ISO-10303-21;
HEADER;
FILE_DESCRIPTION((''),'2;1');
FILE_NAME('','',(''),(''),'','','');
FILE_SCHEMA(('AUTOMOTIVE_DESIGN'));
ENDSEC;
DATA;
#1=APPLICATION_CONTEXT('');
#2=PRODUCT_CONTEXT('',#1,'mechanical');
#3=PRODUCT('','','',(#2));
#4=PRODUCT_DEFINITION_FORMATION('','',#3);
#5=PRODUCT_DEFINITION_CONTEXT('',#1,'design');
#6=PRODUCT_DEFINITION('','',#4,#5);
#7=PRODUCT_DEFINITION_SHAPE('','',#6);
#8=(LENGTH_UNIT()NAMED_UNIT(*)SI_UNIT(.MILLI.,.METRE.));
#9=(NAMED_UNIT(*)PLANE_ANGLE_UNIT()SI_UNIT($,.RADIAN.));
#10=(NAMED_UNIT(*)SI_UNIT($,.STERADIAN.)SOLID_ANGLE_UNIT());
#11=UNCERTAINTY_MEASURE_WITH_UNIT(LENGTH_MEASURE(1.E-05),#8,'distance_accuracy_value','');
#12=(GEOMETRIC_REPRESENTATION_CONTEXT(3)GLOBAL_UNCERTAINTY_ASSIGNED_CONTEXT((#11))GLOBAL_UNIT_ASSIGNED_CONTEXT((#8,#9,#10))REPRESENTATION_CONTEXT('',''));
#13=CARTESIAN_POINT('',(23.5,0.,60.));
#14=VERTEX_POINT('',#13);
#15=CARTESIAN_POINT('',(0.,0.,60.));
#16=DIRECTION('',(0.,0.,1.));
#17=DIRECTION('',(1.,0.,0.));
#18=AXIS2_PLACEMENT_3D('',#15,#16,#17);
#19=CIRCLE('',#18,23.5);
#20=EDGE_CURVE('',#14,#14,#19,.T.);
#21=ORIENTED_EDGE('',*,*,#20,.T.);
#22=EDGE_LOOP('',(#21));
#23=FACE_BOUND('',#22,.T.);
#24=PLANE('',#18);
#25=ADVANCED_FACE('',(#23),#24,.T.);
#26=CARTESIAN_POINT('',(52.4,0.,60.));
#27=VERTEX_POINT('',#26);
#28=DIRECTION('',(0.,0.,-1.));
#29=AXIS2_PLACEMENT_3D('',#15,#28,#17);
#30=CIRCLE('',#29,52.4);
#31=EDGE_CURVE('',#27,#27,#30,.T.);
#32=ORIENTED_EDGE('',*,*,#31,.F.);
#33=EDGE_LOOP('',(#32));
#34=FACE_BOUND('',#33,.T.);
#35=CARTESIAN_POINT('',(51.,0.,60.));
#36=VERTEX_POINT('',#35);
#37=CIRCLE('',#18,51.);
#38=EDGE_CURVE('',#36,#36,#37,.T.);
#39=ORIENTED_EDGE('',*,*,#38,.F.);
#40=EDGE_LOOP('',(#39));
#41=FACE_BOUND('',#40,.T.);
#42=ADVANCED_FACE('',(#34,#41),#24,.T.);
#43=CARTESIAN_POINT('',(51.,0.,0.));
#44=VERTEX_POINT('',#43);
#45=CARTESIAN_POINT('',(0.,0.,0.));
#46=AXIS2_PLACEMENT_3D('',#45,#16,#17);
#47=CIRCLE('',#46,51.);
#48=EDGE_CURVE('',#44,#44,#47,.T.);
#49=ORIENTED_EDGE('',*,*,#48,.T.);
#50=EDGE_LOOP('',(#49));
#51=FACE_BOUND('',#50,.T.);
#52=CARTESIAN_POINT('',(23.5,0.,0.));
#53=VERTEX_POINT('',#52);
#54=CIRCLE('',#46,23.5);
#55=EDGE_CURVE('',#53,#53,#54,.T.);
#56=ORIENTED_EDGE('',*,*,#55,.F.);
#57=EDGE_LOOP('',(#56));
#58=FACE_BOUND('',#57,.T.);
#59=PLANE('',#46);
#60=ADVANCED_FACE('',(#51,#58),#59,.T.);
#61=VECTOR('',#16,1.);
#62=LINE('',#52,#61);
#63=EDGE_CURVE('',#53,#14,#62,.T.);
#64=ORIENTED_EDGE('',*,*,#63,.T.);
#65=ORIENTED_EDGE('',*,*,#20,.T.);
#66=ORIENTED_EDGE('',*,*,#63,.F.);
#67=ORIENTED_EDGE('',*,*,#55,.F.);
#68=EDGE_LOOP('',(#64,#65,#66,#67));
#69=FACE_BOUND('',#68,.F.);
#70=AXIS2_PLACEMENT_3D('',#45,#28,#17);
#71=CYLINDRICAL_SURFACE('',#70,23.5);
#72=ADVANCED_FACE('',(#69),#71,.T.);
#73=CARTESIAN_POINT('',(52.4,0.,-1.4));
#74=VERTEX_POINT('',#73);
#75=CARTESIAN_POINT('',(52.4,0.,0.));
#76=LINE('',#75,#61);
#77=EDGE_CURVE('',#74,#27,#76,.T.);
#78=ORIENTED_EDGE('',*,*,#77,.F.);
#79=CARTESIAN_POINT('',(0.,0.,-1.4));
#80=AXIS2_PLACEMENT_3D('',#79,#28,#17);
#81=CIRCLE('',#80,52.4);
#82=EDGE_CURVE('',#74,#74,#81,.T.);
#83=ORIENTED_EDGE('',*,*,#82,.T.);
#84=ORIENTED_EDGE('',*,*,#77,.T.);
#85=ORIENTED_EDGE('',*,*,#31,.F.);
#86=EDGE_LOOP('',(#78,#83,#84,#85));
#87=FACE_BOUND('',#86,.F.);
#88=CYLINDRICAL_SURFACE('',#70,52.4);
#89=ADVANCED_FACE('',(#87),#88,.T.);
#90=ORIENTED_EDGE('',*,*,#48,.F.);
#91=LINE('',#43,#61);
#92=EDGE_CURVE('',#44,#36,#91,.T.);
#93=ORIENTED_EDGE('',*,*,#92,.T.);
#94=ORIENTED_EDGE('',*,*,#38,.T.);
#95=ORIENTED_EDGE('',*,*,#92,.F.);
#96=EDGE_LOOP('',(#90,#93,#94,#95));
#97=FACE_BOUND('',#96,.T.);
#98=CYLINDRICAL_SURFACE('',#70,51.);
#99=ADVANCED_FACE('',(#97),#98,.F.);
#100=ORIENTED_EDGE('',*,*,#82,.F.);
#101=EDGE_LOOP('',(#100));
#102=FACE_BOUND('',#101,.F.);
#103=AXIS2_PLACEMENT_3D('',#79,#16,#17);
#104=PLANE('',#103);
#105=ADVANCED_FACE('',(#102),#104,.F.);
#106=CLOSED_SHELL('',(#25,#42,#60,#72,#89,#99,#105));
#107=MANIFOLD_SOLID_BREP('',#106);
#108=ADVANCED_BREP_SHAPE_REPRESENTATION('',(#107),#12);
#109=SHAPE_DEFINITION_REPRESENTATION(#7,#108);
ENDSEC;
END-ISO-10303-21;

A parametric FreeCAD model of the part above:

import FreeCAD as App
import Part
import Sketcher
from FreeCAD import Vector
Q = App.Units.Quantity


def faces_at(feature, points):
    """Names of the faces that lie closest to the given points."""
    faces = feature.Shape.Faces
    near = lambda p: min(range(len(faces)), key=lambda i: faces[i].distToShape(Part.Vertex(*p))[0])
    return sorted({f"Face{near(p) + 1}" for p in points})

doc = App.newDocument("Part")
body = doc.addObject("PartDesign::Body", "Body")

# Sketch on XY plane
sketch1 = doc.addObject("Sketcher::SketchObject", "Sketch")
body.addObject(sketch1)
sketch1.AttachmentSupport = (doc.XY_Plane, [""])
sketch1.MapMode = "FlatFace"
sketch1.addGeometry(Part.Circle(Vector(0, 0, 0), Vector(0, 0, 1), 51), False)
sketch1.addConstraint([
    Sketcher.Constraint("Coincident", 0, 3, -1, 1),
    Sketcher.Constraint("Diameter", 0, Q("102 mm")),
])
pad1 = doc.addObject("PartDesign::Pad", "Pad")
body.addObject(pad1)
pad1.Profile = sketch1
pad1.Length = 60
doc.recompute()

thickness = doc.addObject("PartDesign::Thickness", "Thickness")
body.addObject(thickness)
thickness.Base = (pad1, faces_at(pad1, [(0, 0, 60)]))
thickness.Value = 1.4
thickness.Reversed = False
thickness.Join = "Intersection"

# Sketch on XY plane
sketch2 = doc.addObject("Sketcher::SketchObject", "Sketch001")
body.addObject(sketch2)
sketch2.AttachmentSupport = (doc.XY_Plane, [""])
sketch2.MapMode = "FlatFace"
sketch2.addGeometry(Part.Circle(Vector(0, 0, 0), Vector(0, 0, 1), 23.5), False)
sketch2.addConstraint([
    Sketcher.Constraint("Coincident", 0, 3, -1, 1),
    Sketcher.Constraint("Diameter", 0, Q("47 mm")),
])
pad2 = doc.addObject("PartDesign::Pad", "Pad001")
body.addObject(pad2)
pad2.Profile = sketch2
pad2.Length = 60

doc.recompute()
